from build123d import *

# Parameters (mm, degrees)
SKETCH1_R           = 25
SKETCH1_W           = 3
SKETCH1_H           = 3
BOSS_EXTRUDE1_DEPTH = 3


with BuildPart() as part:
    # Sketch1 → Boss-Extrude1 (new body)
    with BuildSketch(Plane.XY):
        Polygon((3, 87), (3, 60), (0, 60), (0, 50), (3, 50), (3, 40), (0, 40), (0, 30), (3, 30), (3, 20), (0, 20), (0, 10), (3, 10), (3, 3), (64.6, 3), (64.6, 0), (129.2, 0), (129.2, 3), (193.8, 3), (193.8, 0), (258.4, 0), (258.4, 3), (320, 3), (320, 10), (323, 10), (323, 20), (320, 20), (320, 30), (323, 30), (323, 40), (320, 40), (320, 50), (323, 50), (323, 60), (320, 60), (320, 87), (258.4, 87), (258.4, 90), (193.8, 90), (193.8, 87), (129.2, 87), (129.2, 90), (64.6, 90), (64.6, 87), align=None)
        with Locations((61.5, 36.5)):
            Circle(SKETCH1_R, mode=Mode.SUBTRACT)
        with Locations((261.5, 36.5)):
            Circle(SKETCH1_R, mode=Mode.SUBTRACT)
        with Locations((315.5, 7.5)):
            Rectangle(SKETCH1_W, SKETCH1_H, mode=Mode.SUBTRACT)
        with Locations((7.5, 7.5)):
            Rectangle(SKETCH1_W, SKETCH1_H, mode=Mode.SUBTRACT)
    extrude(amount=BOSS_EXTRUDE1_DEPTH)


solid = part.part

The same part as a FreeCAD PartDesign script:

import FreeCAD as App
import Part
import Sketcher

doc = App.newDocument("Part")
params = doc.addObject("Spreadsheet::Sheet", "Params")
for row, (alias, value) in enumerate([
    ("sketch1_diameter", "50 mm"),
    ("sketch1_width", "3 mm"),
    ("sketch1_height", "27 mm"),
    ("sketch1_height2", "10 mm"),
    ("sketch1_height3", "7 mm"),
    ("pad1_length", "3 mm"),
], start=1):
    params.set(f"A{row}", alias)
    params.set(f"B{row}", "=" + value)
    params.setAlias(f"B{row}", alias)

body = doc.addObject("PartDesign::Body", "Body")

# Sketch on XY plane
sketch1 = body.newObject("Sketcher::SketchObject", "Sketch")
sketch1.AttachmentSupport = (doc.getObject("XY_Plane"), [""])
sketch1.MapMode = "FlatFace"
sketch1.addGeometry([
    Part.LineSegment(App.Vector(3, 87, 0), App.Vector(3, 60, 0)),  # 0
    Part.LineSegment(App.Vector(3, 60, 0), App.Vector(0, 60, 0)),  # 1
    Part.LineSegment(App.Vector(0, 60, 0), App.Vector(0, 50, 0)),  # 2
    Part.LineSegment(App.Vector(0, 50, 0), App.Vector(3, 50, 0)),  # 3
    Part.LineSegment(App.Vector(3, 50, 0), App.Vector(3, 40, 0)),  # 4
    Part.LineSegment(App.Vector(3, 40, 0), App.Vector(0, 40, 0)),  # 5
    Part.LineSegment(App.Vector(0, 40, 0), App.Vector(0, 30, 0)),  # 6
    Part.LineSegment(App.Vector(0, 30, 0), App.Vector(3, 30, 0)),  # 7
    Part.LineSegment(App.Vector(3, 30, 0), App.Vector(3, 20, 0)),  # 8
    Part.LineSegment(App.Vector(3, 20, 0), App.Vector(0, 20, 0)),  # 9
    Part.LineSegment(App.Vector(0, 20, 0), App.Vector(0, 10, 0)),  # 10
    Part.LineSegment(App.Vector(0, 10, 0), App.Vector(3, 10, 0)),  # 11
    Part.LineSegment(App.Vector(3, 10, 0), App.Vector(3, 3, 0)),  # 12
    Part.LineSegment(App.Vector(3, 3, 0), App.Vector(64.6, 3, 0)),  # 13
    Part.LineSegment(App.Vector(64.6, 3, 0), App.Vector(64.6, 0, 0)),  # 14
    Part.LineSegment(App.Vector(64.6, 0, 0), App.Vector(129.2, 0, 0)),  # 15
    Part.LineSegment(App.Vector(129.2, 0, 0), App.Vector(129.2, 3, 0)),  # 16
    Part.LineSegment(App.Vector(129.2, 3, 0), App.Vector(193.8, 3, 0)),  # 17
    Part.LineSegment(App.Vector(193.8, 3, 0), App.Vector(193.8, 0, 0)),  # 18
    Part.LineSegment(App.Vector(193.8, 0, 0), App.Vector(258.4, 0, 0)),  # 19
    Part.LineSegment(App.Vector(258.4, 0, 0), App.Vector(258.4, 3, 0)),  # 20
    Part.LineSegment(App.Vector(258.4, 3, 0), App.Vector(320, 3, 0)),  # 21
    Part.LineSegment(App.Vector(320, 3, 0), App.Vector(320, 10, 0)),  # 22
    Part.LineSegment(App.Vector(320, 10, 0), App.Vector(323, 10, 0)),  # 23
    Part.LineSegment(App.Vector(323, 10, 0), App.Vector(323, 20, 0)),  # 24
    Part.LineSegment(App.Vector(323, 20, 0), App.Vector(320, 20, 0)),  # 25
    Part.LineSegment(App.Vector(320, 20, 0), App.Vector(320, 30, 0)),  # 26
    Part.LineSegment(App.Vector(320, 30, 0), App.Vector(323, 30, 0)),  # 27
    Part.LineSegment(App.Vector(323, 30, 0), App.Vector(323, 40, 0)),  # 28
    Part.LineSegment(App.Vector(323, 40, 0), App.Vector(320, 40, 0)),  # 29
    Part.LineSegment(App.Vector(320, 40, 0), App.Vector(320, 50, 0)),  # 30
    Part.LineSegment(App.Vector(320, 50, 0), App.Vector(323, 50, 0)),  # 31
    Part.LineSegment(App.Vector(323, 50, 0), App.Vector(323, 60, 0)),  # 32
    Part.LineSegment(App.Vector(323, 60, 0), App.Vector(320, 60, 0)),  # 33
    Part.LineSegment(App.Vector(320, 60, 0), App.Vector(320, 87, 0)),  # 34
    Part.LineSegment(App.Vector(320, 87, 0), App.Vector(258.4, 87, 0)),  # 35
    Part.LineSegment(App.Vector(258.4, 87, 0), App.Vector(258.4, 90, 0)),  # 36
    Part.LineSegment(App.Vector(258.4, 90, 0), App.Vector(193.8, 90, 0)),  # 37
    Part.LineSegment(App.Vector(193.8, 90, 0), App.Vector(193.8, 87, 0)),  # 38
    Part.LineSegment(App.Vector(193.8, 87, 0), App.Vector(129.2, 87, 0)),  # 39
    Part.LineSegment(App.Vector(129.2, 87, 0), App.Vector(129.2, 90, 0)),  # 40
    Part.LineSegment(App.Vector(129.2, 90, 0), App.Vector(64.6, 90, 0)),  # 41
    Part.LineSegment(App.Vector(64.6, 90, 0), App.Vector(64.6, 87, 0)),  # 42
    Part.LineSegment(App.Vector(64.6, 87, 0), App.Vector(3, 87, 0)),  # 43
    Part.LineSegment(App.Vector(9, 6, 0), App.Vector(6, 6, 0)),  # 44
    Part.LineSegment(App.Vector(6, 6, 0), App.Vector(6, 9, 0)),  # 45
    Part.LineSegment(App.Vector(6, 9, 0), App.Vector(9, 9, 0)),  # 46
    Part.LineSegment(App.Vector(9, 9, 0), App.Vector(9, 6, 0)),  # 47
    Part.LineSegment(App.Vector(317, 6, 0), App.Vector(314, 6, 0)),  # 48
    Part.LineSegment(App.Vector(314, 6, 0), App.Vector(314, 9, 0)),  # 49
    Part.LineSegment(App.Vector(314, 9, 0), App.Vector(317, 9, 0)),  # 50
    Part.LineSegment(App.Vector(317, 9, 0), App.Vector(317, 6, 0)),  # 51
    Part.Circle(App.Vector(61.5, 36.5, 0), App.Vector(0, 0, 1), 25),  # 52
    Part.Circle(App.Vector(261.5, 36.5, 0), App.Vector(0, 0, 1), 25),  # 53
], False)
sketch1.addConstraint([
    Sketcher.Constraint("Coincident", 0, 2, 1, 1),
    Sketcher.Constraint("Coincident", 1, 2, 2, 1),
    Sketcher.Constraint("Coincident", 2, 2, 3, 1),
    Sketcher.Constraint("Coincident", 3, 2, 4, 1),
    Sketcher.Constraint("Coincident", 4, 2, 5, 1),
    Sketcher.Constraint("Coincident", 5, 2, 6, 1),
    Sketcher.Constraint("Coincident", 6, 2, 7, 1),
    Sketcher.Constraint("Coincident", 7, 2, 8, 1),
    Sketcher.Constraint("Coincident", 8, 2, 9, 1),
    Sketcher.Constraint("Coincident", 9, 2, 10, 1),
    Sketcher.Constraint("Coincident", 10, 2, 11, 1),
    Sketcher.Constraint("Coincident", 11, 2, 12, 1),
    Sketcher.Constraint("Coincident", 12, 2, 13, 1),
    Sketcher.Constraint("Coincident", 13, 2, 14, 1),
    Sketcher.Constraint("Coincident", 14, 2, 15, 1),
    Sketcher.Constraint("Coincident", 15, 2, 16, 1),
    Sketcher.Constraint("Coincident", 16, 2, 17, 1),
    Sketcher.Constraint("Coincident", 17, 2, 18, 1),
    Sketcher.Constraint("Coincident", 18, 2, 19, 1),
    Sketcher.Constraint("Coincident", 19, 2, 20, 1),
    Sketcher.Constraint("Coincident", 20, 2, 21, 1),
    Sketcher.Constraint("Coincident", 21, 2, 22, 1),
    Sketcher.Constraint("Coincident", 22, 2, 23, 1),
    Sketcher.Constraint("Coincident", 23, 2, 24, 1),
    Sketcher.Constraint("Coincident", 24, 2, 25, 1),
    Sketcher.Constraint("Coincident", 25, 2, 26, 1),
    Sketcher.Constraint("Coincident", 26, 2, 27, 1),
    Sketcher.Constraint("Coincident", 27, 2, 28, 1),
    Sketcher.Constraint("Coincident", 28, 2, 29, 1),
    Sketcher.Constraint("Coincident", 29, 2, 30, 1),
    Sketcher.Constraint("Coincident", 30, 2, 31, 1),
    Sketcher.Constraint("Coincident", 31, 2, 32, 1),
    Sketcher.Constraint("Coincident", 32, 2, 33, 1),
    Sketcher.Constraint("Coincident", 33, 2, 34, 1),
    Sketcher.Constraint("Coincident", 34, 2, 35, 1),
    Sketcher.Constraint("Coincident", 35, 2, 36, 1),
    Sketcher.Constraint("Coincident", 36, 2, 37, 1),
    Sketcher.Constraint("Coincident", 37, 2, 38, 1),
    Sketcher.Constraint("Coincident", 38, 2, 39, 1),
    Sketcher.Constraint("Coincident", 39, 2, 40, 1),
    Sketcher.Constraint("Coincident", 40, 2, 41, 1),
    Sketcher.Constraint("Coincident", 41, 2, 42, 1),
    Sketcher.Constraint("Coincident", 42, 2, 43, 1),
    Sketcher.Constraint("Coincident", 43, 2, 0, 1),
    Sketcher.Constraint("Coincident", 44, 2, 45, 1),
    Sketcher.Constraint("Coincident", 45, 2, 46, 1),
    Sketcher.Constraint("Coincident", 46, 2, 47, 1),
    Sketcher.Constraint("Coincident", 47, 2, 44, 1),
    Sketcher.Constraint("Coincident", 48, 2, 49, 1),
    Sketcher.Constraint("Coincident", 49, 2, 50, 1),
    Sketcher.Constraint("Coincident", 50, 2, 51, 1),
    Sketcher.Constraint("Coincident", 51, 2, 48, 1),
    Sketcher.Constraint("Vertical", 0),
    Sketcher.Constraint("Horizontal", 1),
    Sketcher.Constraint("Vertical", 2),
    Sketcher.Constraint("Horizontal", 3),
    Sketcher.Constraint("Vertical", 4),
    Sketcher.Constraint("Horizontal", 5),
    Sketcher.Constraint("Vertical", 6),
    Sketcher.Constraint("Horizontal", 7),
    Sketcher.Constraint("Vertical", 8),
    Sketcher.Constraint("Horizontal", 9),
    Sketcher.Constraint("Vertical", 10),
    Sketcher.Constraint("Horizontal", 11),
    Sketcher.Constraint("Vertical", 12),
    Sketcher.Constraint("Horizontal", 13),
    Sketcher.Constraint("Vertical", 14),
    Sketcher.Constraint("Horizontal", 15),
    Sketcher.Constraint("Vertical", 16),
    Sketcher.Constraint("Horizontal", 17),
    Sketcher.Constraint("Vertical", 18),
    Sketcher.Constraint("Horizontal", 19),
    Sketcher.Constraint("Vertical", 20),
    Sketcher.Constraint("Horizontal", 21),
    Sketcher.Constraint("Vertical", 22),
    Sketcher.Constraint("Horizontal", 23),
    Sketcher.Constraint("Vertical", 24),
    Sketcher.Constraint("Horizontal", 25),
    Sketcher.Constraint("Vertical", 26),
    Sketcher.Constraint("Horizontal", 27),
    Sketcher.Constraint("Vertical", 28),
    Sketcher.Constraint("Horizontal", 29),
    Sketcher.Constraint("Vertical", 30),
    Sketcher.Constraint("Horizontal", 31),
    Sketcher.Constraint("Vertical", 32),
    Sketcher.Constraint("Horizontal", 33),
    Sketcher.Constraint("Vertical", 34),
    Sketcher.Constraint("Horizontal", 35),
    Sketcher.Constraint("Vertical", 36),
    Sketcher.Constraint("Horizontal", 37),
    Sketcher.Constraint("Vertical", 38),
    Sketcher.Constraint("Horizontal", 39),
    Sketcher.Constraint("Vertical", 40),
    Sketcher.Constraint("Horizontal", 41),
    Sketcher.Constraint("Vertical", 42),
    Sketcher.Constraint("Horizontal", 43),
    Sketcher.Constraint("Horizontal", 44),
    Sketcher.Constraint("Vertical", 45),
    Sketcher.Constraint("Horizontal", 46),
    Sketcher.Constraint("Vertical", 47),
    Sketcher.Constraint("Horizontal", 48),
    Sketcher.Constraint("Vertical", 49),
    Sketcher.Constraint("Horizontal", 50),
    Sketcher.Constraint("Vertical", 51),
    Sketcher.Constraint("Equal", 52, 53),
    Sketcher.Constraint("PointOnObject", 1, 2, -2),
    Sketcher.Constraint("PointOnObject", 5, 2, -2),
    Sketcher.Constraint("PointOnObject", 9, 2, -2),
    Sketcher.Constraint("PointOnObject", 14, 2, -1),
    Sketcher.Constraint("PointOnObject", 18, 2, -1),
    Sketcher.Constraint("Horizontal", 52, 3, 53, 3),
    Sketcher.Constraint("Horizontal", 13, 2, 16, 2),
    Sketcher.Constraint("Horizontal", 17, 2, 20, 2),
    Sketcher.Constraint("Horizontal", 11, 2, 22, 2),
    Sketcher.Constraint("Horizontal", 9, 2, 24, 2),
    Sketcher.Constraint("Horizontal", 7, 2, 26, 2),
    Sketcher.Constraint("Horizontal", 5, 2, 28, 2),
    Sketcher.Constraint("Horizontal", 3, 2, 30, 2),
    Sketcher.Constraint("Horizontal", 1, 2, 32, 2),
    Sketcher.Constraint("Horizontal", 35, 2, 38, 2),
    Sketcher.Constraint("Horizontal", 37, 2, 40, 2),
    Sketcher.Constraint("Horizontal", 39, 2, 42, 2),
    Sketcher.Constraint("Horizontal", 47, 2, 48, 2),
    Sketcher.Constraint("Horizontal", 46, 2, 49, 2),
    Sketcher.Constraint("Vertical", 0, 2, 3, 2),
    Sketcher.Constraint("Vertical", 4, 2, 7, 2),
    Sketcher.Constraint("Vertical", 8, 2, 11, 2),
    Sketcher.Constraint("Vertical", 22, 2, 25, 2),
    Sketcher.Constraint("Vertical", 24, 2, 27, 2),
    Sketcher.Constraint("Vertical", 26, 2, 29, 2),
    Sketcher.Constraint("Vertical", 28, 2, 31, 2),
    Sketcher.Constraint("Vertical", 30, 2, 33, 2),
    Sketcher.Constraint("Vertical", 20, 2, 35, 2),
    Sketcher.Constraint("Vertical", 18, 2, 37, 2),
    Sketcher.Constraint("Vertical", 16, 2, 39, 2),
    Sketcher.Constraint("Vertical", 14, 2, 41, 2),
    Sketcher.Constraint("Equal", 15, 17),
    Sketcher.Constraint("Equal", 17, 19),
    Sketcher.Constraint("Equal", 13, 21),
    Sketcher.Constraint("Equal", 11, 23),
    Sketcher.Constraint("Equal", 33, 44),
    Sketcher.Constraint("Equal", 46, 48),
    Sketcher.Constraint("Equal", 2, 4),
    Sketcher.Constraint("Equal", 4, 6),
    Sketcher.Constraint("Equal", 6, 8),
    Sketcher.Constraint("Equal", 8, 10),
    Sketcher.Constraint("Equal", 50, 14),
    Sketcher.Constraint("Equal", 20, 36),
    Sketcher.Constraint("Equal", 42, 45),
    Sketcher.Constraint("Diameter", 52, 50.0),
    Sketcher.Constraint("DistanceX", 1, 2, 1, 1, 3.0),
    Sketcher.Constraint("DistanceY", 0, 2, 0, 1, 27.0),
    Sketcher.Constraint("DistanceY", 2, 2, 2, 1, 10.0),
    Sketcher.Constraint("DistanceY", 12, 2, 12, 1, 7.0),
    Sketcher.Constraint("DistanceX", 13, 1, 13, 2, 61.6),
    Sketcher.Constraint("DistanceX", 15, 1, 15, 2, 64.6),
    Sketcher.Constraint("DistanceX", -1, 1, 44, 2, 6.0),
    Sketcher.Constraint("DistanceY", -1, 1, 44, 2, 6.0),
    Sketcher.Constraint("DistanceX", -1, 1, 48, 2, 314.0),
    Sketcher.Constraint("DistanceX", 52, 3, 53, 3, 200.0),
    Sketcher.Constraint("DistanceX", -1, 1, 52, 3, 61.5),
    Sketcher.Constraint("DistanceY", -1, 1, 52, 3, 36.5),
])
sketch1.setExpression("Constraints[149]", "Params.sketch1_diameter")
sketch1.setExpression("Constraints[150]", "Params.sketch1_width")
sketch1.setExpression("Constraints[151]", "Params.sketch1_height")
sketch1.setExpression("Constraints[152]", "Params.sketch1_height2")
sketch1.setExpression("Constraints[153]", "Params.sketch1_height3")
pad1 = body.newObject("PartDesign::Pad", "Pad")
pad1.Profile = sketch1
pad1.setExpression("Length", "Params.pad1_length")

doc.recompute()
